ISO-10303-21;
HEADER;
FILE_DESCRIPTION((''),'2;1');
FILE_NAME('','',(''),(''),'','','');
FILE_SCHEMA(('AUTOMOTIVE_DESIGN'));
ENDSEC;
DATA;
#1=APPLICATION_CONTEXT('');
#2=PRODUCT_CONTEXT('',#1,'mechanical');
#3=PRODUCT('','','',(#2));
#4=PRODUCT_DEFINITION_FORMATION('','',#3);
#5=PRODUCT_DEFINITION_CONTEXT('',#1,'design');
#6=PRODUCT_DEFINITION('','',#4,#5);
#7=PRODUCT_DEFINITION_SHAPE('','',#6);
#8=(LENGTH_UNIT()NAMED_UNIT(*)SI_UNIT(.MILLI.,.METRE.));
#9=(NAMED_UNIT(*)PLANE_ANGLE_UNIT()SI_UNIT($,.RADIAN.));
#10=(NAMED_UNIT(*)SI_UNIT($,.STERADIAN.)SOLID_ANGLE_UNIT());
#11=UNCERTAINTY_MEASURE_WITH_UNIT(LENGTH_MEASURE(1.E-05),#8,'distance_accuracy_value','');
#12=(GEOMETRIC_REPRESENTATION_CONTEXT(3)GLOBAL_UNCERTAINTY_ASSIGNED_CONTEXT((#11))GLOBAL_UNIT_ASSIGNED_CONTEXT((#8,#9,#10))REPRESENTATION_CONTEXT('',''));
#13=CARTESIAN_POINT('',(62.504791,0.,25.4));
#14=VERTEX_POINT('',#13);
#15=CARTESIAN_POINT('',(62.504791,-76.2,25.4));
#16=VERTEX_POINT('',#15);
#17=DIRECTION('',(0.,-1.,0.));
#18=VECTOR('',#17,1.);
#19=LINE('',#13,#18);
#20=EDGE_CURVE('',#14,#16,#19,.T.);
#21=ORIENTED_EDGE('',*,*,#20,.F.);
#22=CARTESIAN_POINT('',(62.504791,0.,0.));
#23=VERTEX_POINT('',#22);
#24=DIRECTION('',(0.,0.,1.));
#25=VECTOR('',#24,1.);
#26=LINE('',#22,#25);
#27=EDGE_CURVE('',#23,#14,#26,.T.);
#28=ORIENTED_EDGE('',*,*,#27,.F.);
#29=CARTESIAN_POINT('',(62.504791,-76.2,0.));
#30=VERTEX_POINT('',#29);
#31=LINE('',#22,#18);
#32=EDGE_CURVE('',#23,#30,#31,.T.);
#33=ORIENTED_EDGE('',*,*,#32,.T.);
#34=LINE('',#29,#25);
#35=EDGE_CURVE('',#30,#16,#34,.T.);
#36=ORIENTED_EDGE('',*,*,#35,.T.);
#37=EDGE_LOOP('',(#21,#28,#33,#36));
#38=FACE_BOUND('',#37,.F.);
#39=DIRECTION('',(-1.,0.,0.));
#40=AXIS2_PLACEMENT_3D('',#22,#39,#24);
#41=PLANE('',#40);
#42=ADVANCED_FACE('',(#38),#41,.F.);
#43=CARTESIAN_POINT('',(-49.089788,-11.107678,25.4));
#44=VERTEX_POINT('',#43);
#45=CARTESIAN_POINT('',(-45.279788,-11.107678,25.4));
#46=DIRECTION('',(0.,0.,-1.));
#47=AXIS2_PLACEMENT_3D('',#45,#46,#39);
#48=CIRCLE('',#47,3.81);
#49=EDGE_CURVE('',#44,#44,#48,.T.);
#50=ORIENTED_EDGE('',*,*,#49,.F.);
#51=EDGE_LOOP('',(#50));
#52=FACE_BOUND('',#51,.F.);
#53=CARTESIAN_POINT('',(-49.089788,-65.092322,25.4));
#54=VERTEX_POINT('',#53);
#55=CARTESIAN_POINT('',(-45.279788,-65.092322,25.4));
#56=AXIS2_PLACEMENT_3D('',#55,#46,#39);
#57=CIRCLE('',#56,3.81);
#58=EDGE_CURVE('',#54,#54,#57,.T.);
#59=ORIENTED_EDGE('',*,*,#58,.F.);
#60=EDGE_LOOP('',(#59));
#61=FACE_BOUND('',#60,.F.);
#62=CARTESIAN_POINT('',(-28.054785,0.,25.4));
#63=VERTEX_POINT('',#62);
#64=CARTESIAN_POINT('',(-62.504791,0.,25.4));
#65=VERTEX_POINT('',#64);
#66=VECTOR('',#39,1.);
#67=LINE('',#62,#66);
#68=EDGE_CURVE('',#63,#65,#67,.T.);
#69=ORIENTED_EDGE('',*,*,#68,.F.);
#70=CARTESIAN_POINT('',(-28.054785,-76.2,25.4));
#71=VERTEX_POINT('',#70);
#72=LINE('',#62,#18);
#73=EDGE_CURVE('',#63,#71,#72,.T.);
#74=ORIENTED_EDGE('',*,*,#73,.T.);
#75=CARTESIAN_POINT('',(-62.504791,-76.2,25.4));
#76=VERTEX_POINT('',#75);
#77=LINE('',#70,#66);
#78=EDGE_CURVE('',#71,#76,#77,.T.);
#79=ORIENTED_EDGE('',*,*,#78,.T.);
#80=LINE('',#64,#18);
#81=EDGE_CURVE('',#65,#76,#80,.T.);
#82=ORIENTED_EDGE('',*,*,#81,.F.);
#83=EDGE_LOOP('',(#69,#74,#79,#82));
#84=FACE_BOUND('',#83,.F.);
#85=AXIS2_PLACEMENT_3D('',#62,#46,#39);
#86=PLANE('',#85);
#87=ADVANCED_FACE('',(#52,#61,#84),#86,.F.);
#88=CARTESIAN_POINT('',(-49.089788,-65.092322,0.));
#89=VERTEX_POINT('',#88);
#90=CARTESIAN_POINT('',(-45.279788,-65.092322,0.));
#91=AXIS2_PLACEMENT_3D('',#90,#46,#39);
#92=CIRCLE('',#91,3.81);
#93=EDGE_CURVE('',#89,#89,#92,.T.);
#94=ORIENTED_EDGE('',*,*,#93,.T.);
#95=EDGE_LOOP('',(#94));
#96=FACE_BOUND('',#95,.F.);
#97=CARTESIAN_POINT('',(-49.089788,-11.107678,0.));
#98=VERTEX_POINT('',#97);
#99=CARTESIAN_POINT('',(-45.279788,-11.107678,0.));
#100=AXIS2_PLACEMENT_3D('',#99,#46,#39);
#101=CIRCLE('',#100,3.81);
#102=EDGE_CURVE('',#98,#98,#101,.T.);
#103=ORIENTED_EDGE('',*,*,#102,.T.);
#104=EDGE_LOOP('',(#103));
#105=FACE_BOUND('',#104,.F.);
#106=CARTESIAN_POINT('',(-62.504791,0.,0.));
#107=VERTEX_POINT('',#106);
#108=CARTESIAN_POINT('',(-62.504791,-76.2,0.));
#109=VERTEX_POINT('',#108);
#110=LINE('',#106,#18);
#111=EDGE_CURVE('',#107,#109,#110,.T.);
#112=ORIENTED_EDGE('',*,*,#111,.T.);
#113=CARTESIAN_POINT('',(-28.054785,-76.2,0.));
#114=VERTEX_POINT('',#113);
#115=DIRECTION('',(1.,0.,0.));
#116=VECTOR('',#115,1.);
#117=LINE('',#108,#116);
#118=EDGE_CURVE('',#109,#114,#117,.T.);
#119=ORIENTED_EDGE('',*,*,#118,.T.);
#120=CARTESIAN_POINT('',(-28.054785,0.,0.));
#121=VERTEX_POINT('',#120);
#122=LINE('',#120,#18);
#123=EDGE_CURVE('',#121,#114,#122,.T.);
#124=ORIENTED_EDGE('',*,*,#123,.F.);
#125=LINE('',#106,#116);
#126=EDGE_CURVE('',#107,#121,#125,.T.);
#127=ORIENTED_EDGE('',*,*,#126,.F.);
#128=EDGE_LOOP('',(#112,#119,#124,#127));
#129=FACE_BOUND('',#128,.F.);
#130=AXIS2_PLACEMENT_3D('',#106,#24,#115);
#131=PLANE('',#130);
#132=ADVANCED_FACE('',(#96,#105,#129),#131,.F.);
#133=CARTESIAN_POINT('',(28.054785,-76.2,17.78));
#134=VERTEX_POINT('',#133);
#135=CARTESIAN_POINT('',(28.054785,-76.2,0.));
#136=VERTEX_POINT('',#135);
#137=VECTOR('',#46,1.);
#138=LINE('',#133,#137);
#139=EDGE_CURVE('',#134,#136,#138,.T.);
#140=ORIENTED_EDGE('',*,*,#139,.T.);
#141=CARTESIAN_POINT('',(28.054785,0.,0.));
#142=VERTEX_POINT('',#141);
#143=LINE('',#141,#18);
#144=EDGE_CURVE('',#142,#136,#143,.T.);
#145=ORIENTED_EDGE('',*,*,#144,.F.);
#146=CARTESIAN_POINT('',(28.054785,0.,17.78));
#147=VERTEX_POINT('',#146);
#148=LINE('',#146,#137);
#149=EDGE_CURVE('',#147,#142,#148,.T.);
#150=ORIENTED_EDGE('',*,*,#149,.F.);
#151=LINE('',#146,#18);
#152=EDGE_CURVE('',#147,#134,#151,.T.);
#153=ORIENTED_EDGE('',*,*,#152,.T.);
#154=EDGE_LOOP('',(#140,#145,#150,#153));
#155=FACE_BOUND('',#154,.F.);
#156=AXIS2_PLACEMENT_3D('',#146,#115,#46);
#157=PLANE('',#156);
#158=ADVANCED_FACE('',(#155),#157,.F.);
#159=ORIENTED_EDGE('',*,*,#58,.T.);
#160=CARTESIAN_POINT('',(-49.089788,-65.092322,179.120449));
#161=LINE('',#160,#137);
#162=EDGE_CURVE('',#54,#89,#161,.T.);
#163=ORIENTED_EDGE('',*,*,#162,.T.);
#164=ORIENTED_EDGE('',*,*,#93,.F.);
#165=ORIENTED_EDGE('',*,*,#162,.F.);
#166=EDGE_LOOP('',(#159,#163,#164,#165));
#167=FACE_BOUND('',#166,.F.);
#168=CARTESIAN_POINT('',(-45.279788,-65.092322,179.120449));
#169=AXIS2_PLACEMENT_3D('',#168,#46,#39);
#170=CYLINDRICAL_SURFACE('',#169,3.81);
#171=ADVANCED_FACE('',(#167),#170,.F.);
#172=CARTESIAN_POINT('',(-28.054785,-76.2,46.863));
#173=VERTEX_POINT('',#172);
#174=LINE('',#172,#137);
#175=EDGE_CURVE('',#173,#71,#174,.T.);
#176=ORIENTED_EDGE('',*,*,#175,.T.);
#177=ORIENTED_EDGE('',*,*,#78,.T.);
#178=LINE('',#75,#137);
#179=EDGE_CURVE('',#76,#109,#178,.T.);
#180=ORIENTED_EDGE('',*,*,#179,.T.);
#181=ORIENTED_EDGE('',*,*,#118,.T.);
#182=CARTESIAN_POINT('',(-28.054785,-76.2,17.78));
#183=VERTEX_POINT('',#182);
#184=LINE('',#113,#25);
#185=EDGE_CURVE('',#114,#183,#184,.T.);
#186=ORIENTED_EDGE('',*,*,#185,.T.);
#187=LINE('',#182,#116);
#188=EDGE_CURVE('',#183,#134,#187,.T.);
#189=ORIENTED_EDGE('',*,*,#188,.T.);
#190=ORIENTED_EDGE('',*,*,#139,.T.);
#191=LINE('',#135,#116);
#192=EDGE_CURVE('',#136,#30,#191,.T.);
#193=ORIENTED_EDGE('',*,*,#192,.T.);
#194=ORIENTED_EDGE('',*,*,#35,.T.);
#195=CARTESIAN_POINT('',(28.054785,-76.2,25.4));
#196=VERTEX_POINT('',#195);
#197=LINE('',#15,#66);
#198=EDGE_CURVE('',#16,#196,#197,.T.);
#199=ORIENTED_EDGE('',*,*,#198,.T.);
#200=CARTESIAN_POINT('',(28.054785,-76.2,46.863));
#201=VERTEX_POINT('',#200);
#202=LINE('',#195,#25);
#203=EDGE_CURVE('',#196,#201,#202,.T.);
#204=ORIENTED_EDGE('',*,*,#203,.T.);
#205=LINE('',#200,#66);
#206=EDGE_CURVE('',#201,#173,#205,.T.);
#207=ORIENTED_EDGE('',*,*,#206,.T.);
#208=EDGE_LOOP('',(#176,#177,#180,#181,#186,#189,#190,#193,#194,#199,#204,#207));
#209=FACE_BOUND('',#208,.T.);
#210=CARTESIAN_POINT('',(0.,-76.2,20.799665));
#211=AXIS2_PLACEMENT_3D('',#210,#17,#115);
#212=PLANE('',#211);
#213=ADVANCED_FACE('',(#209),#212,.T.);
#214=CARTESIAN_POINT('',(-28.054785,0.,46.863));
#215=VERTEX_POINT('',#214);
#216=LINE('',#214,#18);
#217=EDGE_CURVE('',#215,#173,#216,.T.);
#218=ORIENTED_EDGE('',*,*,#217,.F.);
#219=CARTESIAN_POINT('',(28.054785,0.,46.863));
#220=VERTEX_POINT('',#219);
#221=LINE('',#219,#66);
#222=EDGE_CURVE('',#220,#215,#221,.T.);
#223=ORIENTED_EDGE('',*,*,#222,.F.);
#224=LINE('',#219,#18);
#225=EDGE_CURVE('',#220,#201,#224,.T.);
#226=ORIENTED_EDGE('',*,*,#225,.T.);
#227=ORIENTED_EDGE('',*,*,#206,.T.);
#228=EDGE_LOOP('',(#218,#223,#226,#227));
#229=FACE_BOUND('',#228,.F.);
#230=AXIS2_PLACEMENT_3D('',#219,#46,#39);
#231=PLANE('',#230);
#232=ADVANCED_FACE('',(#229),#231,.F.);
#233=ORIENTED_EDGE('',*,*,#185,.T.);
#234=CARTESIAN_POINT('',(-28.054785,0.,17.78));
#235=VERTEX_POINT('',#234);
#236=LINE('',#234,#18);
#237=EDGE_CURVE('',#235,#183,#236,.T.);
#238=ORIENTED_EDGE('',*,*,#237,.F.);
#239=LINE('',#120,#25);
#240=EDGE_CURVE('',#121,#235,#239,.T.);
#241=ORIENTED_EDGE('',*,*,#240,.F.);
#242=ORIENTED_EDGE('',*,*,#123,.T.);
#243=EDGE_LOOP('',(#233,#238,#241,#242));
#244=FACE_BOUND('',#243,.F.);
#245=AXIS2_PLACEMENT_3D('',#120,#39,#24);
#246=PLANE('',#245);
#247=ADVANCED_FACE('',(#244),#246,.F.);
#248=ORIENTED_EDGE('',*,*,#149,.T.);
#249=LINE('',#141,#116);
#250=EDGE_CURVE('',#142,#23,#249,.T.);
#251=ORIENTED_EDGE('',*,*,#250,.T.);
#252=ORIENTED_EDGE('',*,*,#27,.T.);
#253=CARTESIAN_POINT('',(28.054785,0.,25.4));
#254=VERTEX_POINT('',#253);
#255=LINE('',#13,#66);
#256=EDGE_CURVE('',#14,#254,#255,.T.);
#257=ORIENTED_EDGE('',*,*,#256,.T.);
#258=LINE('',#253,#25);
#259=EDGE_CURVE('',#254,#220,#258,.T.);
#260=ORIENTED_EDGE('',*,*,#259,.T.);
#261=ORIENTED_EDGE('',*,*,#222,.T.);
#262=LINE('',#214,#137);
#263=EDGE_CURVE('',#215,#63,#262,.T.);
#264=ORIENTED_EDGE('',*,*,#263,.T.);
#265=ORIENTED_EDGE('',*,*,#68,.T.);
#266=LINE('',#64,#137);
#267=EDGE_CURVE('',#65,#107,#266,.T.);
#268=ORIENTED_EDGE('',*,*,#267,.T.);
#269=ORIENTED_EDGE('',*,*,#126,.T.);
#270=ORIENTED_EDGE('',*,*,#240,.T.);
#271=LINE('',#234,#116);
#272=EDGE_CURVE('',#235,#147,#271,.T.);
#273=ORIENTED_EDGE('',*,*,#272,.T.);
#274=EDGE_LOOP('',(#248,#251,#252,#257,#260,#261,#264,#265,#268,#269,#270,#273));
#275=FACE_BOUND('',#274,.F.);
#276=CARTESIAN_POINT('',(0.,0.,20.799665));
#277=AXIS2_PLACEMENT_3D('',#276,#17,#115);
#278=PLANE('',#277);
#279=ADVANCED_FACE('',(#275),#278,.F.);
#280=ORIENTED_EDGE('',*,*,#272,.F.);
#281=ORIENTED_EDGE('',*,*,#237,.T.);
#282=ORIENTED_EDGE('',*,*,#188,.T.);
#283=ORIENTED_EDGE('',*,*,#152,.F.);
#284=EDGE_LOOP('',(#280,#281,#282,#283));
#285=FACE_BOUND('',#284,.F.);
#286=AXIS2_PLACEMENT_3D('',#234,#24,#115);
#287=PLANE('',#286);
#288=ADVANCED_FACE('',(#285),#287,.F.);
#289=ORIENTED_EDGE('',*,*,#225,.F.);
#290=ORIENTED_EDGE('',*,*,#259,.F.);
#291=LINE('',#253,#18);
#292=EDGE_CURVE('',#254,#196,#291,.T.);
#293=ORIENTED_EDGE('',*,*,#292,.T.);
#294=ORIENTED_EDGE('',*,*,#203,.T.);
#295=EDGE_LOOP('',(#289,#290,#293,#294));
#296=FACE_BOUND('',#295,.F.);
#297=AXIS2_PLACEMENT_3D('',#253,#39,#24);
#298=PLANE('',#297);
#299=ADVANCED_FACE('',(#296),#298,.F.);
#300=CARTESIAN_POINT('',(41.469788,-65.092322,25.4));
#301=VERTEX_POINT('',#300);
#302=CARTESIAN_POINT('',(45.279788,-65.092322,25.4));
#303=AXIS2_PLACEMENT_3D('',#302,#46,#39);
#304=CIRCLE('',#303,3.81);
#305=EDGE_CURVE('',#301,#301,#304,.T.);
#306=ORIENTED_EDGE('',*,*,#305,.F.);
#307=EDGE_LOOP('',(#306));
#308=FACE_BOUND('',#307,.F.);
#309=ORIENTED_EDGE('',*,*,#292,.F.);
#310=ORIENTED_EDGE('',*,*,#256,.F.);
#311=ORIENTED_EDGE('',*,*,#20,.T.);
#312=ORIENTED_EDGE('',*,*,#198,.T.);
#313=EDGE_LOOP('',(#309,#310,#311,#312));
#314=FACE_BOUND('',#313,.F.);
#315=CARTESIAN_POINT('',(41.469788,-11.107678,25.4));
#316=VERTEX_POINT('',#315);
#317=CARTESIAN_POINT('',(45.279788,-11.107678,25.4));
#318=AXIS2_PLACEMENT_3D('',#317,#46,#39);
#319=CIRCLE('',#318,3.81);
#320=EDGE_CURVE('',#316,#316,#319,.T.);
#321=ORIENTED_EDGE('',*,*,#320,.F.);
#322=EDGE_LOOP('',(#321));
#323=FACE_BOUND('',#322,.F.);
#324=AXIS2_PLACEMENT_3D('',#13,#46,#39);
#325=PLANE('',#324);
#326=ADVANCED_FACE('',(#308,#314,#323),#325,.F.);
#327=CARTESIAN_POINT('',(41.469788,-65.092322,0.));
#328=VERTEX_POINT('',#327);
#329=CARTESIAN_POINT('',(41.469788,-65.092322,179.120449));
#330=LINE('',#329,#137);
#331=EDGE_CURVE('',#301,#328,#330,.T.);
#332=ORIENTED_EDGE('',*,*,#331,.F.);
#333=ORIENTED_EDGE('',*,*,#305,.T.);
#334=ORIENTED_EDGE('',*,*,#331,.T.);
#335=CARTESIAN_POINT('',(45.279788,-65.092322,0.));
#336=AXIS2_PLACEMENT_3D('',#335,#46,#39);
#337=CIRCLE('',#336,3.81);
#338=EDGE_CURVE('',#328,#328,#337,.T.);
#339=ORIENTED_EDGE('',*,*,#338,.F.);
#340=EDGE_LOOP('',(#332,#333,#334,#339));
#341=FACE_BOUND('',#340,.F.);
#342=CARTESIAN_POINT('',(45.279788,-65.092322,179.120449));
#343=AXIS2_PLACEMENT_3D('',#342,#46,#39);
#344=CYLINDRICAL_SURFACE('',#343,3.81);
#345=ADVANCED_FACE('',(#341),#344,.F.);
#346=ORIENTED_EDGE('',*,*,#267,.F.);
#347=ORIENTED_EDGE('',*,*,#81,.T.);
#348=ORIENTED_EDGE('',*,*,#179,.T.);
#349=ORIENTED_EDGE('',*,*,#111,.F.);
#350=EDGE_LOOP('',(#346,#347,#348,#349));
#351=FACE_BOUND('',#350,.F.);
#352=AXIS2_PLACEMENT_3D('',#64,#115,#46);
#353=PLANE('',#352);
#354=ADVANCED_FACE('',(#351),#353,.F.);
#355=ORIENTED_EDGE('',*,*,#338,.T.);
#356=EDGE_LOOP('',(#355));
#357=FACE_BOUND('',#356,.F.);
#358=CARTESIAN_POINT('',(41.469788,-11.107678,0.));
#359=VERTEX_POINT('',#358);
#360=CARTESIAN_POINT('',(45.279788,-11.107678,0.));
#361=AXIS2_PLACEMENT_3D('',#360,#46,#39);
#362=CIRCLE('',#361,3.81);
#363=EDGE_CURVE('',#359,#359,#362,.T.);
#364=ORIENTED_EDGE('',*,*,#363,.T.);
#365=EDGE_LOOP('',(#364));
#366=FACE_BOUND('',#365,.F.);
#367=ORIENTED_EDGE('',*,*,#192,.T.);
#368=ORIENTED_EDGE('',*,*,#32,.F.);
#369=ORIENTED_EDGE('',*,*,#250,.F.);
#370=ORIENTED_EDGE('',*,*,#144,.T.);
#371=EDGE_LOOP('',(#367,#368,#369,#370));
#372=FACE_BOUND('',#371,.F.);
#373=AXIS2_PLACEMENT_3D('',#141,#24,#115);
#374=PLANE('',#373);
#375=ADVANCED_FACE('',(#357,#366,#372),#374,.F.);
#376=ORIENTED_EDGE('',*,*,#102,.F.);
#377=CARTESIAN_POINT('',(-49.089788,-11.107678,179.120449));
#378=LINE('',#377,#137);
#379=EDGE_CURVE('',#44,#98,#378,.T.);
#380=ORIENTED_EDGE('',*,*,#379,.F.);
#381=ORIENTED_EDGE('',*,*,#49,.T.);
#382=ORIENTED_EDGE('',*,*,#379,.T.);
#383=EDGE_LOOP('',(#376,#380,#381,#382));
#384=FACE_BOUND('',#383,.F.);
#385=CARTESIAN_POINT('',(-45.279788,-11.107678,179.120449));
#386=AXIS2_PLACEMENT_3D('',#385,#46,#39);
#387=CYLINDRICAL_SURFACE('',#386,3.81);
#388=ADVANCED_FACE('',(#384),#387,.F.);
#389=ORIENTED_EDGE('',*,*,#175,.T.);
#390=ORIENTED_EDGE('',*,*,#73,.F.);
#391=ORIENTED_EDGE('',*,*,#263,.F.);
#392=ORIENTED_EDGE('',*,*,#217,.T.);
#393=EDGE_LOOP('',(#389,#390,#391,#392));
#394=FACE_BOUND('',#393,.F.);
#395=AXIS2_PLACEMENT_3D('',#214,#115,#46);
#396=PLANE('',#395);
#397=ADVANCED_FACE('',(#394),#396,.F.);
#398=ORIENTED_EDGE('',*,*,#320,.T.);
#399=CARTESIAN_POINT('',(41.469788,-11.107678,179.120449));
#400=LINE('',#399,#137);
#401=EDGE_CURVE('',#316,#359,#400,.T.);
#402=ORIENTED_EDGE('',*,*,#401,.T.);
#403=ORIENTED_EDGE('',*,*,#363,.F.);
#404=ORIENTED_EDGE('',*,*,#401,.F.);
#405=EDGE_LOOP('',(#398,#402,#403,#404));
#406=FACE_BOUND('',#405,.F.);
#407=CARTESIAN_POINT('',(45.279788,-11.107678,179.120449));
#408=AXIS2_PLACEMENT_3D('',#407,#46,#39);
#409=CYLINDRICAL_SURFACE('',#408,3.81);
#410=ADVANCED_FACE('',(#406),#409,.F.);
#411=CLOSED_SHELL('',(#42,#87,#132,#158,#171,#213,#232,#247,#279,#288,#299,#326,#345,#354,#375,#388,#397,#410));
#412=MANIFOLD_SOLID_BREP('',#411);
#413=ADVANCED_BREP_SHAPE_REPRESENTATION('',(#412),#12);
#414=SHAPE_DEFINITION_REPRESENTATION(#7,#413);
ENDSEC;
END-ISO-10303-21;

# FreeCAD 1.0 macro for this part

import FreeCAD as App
import Part
import Sketcher
Q = App.Units.Quantity


def add_polygon(sketch, points):
    """Adds a closed chain of lines whose ends are joined by coincident constraints."""
    first, n = sketch.GeometryCount, len(points)
    for a, b in zip(points, points[1:] + points[:1]):
        sketch.addGeometry(Part.LineSegment(App.Vector(*a, 0), App.Vector(*b, 0)), False)
    for i in range(n):
        sketch.addConstraint(Sketcher.Constraint("Coincident", first + i, 2, first + (i + 1) % n, 1))

doc = App.newDocument("Part")
body = doc.addObject("PartDesign::Body", "Body")

sketch1 = body.newObject("Sketcher::SketchObject", "Sketch")
sketch1.AttachmentSupport = (doc.getObject("XZ_Plane"), [""])
sketch1.MapMode = "FlatFace"
add_polygon(sketch1, [(-63, 0), (-28, 0), (-28, 18), (28, 18), (28, 0), (63, 0), (63, 25), (28, 25), (28, 47), (-28, 47), (-28, 25), (-63, 25)])
sketch1.addConstraint(Sketcher.Constraint("Horizontal", 0))
sketch1.addConstraint(Sketcher.Constraint("Vertical", 1))
sketch1.addConstraint(Sketcher.Constraint("Horizontal", 2))
sketch1.addConstraint(Sketcher.Constraint("Vertical", 3))
sketch1.addConstraint(Sketcher.Constraint("Horizontal", 4))
sketch1.addConstraint(Sketcher.Constraint("Vertical", 5))
sketch1.addConstraint(Sketcher.Constraint("Horizontal", 6))
sketch1.addConstraint(Sketcher.Constraint("Vertical", 7))
sketch1.addConstraint(Sketcher.Constraint("Horizontal", 8))
sketch1.addConstraint(Sketcher.Constraint("Vertical", 9))
sketch1.addConstraint(Sketcher.Constraint("Horizontal", 10))
sketch1.addConstraint(Sketcher.Constraint("Vertical", 11))
sketch1.addConstraint(Sketcher.Constraint("Symmetric", 0, 2, 3, 2, -1, 1))
sketch1.addConstraint(Sketcher.Constraint("Symmetric", 6, 2, 9, 2, -2))
sketch1.addConstraint(Sketcher.Constraint("Symmetric", 4, 2, 11, 2, -2))
sketch1.addConstraint(Sketcher.Constraint("Vertical", 3, 2, 6, 2))
sketch1.addConstraint(Sketcher.Constraint("DistanceY", 5, 1, 5, 2, Q("1 in")))
sketch1.addConstraint(Sketcher.Constraint("DistanceY", 1, 1, 1, 2, Q("0.7 in")))
sketch1.addConstraint(Sketcher.Constraint("DistanceY", 7, 1, 7, 2, Q("0.845 in")))
sketch1.addConstraint(Sketcher.Constraint("DistanceX", 2, 1, 2, 2, Q("56.10957 mm")))
sketch1.addConstraint(Sketcher.Constraint("DistanceX", 0, 1, 0, 2, Q("34.450006 mm")))
pad1 = body.newObject("PartDesign::Pad", "Pad")
pad1.Profile = sketch1
pad1.Length = Q("3 in")

sketch2 = body.newObject("Sketcher::SketchObject", "Sketch001")
sketch2.AttachmentSupport = (doc.getObject("XY_Plane"), [""])
sketch2.MapMode = "FlatFace"
sketch2.AttachmentOffset = App.Placement(App.Vector(0, 0, 1 * 25.4), App.Rotation())
sketch2.addGeometry(Part.Circle(App.Vector(-45.3, -11.1, 0), App.Vector(0, 0, 1), 3.8), False)
sketch2.addGeometry(Part.Circle(App.Vector(-45.3, -65.1, 0), App.Vector(0, 0, 1), 3.8), False)
sketch2.addConstraint(Sketcher.Constraint("Equal", 0, 1))
sketch2.addConstraint(Sketcher.Constraint("Vertical", 0, 3, 1, 3))
sketch2.addConstraint(Sketcher.Constraint("Diameter", 0, Q("0.3 in")))
sketch2.addConstraint(Sketcher.Constraint("DistanceX", 0, 3, -1, 1, Q("45.279788 mm")))
sketch2.addConstraint(Sketcher.Constraint("DistanceY", 1, 3, -1, 1, Q("65.092322 mm")))
sketch2.addConstraint(Sketcher.Constraint("DistanceY", 0, 3, -1, 1, Q("11.107678 mm")))
doc.recompute()
hole = body.newObject("PartDesign::Hole", "Hole")
hole.Profile = sketch2
hole.ThreadType = "None"
hole.Diameter = Q("0.3 in")
hole.DepthType = "ThroughAll"

sketch3 = body.newObject("Sketcher::SketchObject", "Sketch002")
sketch3.AttachmentSupport = (doc.getObject("XY_Plane"), [""])
sketch3.MapMode = "FlatFace"
sketch3.AttachmentOffset = App.Placement(App.Vector(0, 0, 1 * 25.4), App.Rotation())
sketch3.addGeometry(Part.Circle(App.Vector(45.3, -11.1, 0), App.Vector(0, 0, 1), 3.8), False)
sketch3.addGeometry(Part.Circle(App.Vector(45.3, -65.1, 0), App.Vector(0, 0, 1), 3.8), False)
sketch3.addConstraint(Sketcher.Constraint("Equal", 0, 1))
sketch3.addConstraint(Sketcher.Constraint("Vertical", 0, 3, 1, 3))
sketch3.addConstraint(Sketcher.Constraint("Diameter", 0, Q("0.3 in")))
sketch3.addConstraint(Sketcher.Constraint("DistanceX", -1, 1, 0, 3, Q("45.279788 mm")))
sketch3.addConstraint(Sketcher.Constraint("DistanceY", 1, 3, -1, 1, Q("65.092322 mm")))
sketch3.addConstraint(Sketcher.Constraint("DistanceY", 0, 3, -1, 1, Q("11.107678 mm")))
doc.recompute()
hole2 = body.newObject("PartDesign::Hole", "Hole001")
hole2.Profile = sketch3
hole2.ThreadType = "None"
hole2.Diameter = Q("0.3 in")
hole2.DepthType = "ThroughAll"

doc.recompute()
